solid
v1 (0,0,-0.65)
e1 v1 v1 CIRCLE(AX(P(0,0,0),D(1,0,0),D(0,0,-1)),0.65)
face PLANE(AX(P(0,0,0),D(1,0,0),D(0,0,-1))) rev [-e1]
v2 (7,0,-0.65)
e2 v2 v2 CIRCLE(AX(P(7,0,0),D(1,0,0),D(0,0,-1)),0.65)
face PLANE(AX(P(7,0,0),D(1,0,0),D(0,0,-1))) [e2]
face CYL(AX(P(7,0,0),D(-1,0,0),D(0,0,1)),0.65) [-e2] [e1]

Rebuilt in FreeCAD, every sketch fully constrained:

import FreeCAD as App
import Part
import Sketcher
Q = App.Units.Quantity

doc = App.newDocument("Part")
body = doc.addObject("PartDesign::Body", "Body")

# Sketch on YZ plane
sketch1 = body.newObject("Sketcher::SketchObject", "Sketch")
sketch1.AttachmentSupport = (doc.getObject("YZ_Plane"), [""])
sketch1.MapMode = "FlatFace"
sketch1.addGeometry(Part.Circle(App.Vector(0, 0, 0), App.Vector(0, 0, 1), 0.7), False)
sketch1.addConstraint([
    Sketcher.Constraint("Coincident", 0, 3, -1, 1),
    Sketcher.Constraint("Diameter", 0, Q("1.3 mm")),
])
pad1 = body.newObject("PartDesign::Pad", "Pad")
pad1.Profile = sketch1
pad1.Length = 7

doc.recompute()
